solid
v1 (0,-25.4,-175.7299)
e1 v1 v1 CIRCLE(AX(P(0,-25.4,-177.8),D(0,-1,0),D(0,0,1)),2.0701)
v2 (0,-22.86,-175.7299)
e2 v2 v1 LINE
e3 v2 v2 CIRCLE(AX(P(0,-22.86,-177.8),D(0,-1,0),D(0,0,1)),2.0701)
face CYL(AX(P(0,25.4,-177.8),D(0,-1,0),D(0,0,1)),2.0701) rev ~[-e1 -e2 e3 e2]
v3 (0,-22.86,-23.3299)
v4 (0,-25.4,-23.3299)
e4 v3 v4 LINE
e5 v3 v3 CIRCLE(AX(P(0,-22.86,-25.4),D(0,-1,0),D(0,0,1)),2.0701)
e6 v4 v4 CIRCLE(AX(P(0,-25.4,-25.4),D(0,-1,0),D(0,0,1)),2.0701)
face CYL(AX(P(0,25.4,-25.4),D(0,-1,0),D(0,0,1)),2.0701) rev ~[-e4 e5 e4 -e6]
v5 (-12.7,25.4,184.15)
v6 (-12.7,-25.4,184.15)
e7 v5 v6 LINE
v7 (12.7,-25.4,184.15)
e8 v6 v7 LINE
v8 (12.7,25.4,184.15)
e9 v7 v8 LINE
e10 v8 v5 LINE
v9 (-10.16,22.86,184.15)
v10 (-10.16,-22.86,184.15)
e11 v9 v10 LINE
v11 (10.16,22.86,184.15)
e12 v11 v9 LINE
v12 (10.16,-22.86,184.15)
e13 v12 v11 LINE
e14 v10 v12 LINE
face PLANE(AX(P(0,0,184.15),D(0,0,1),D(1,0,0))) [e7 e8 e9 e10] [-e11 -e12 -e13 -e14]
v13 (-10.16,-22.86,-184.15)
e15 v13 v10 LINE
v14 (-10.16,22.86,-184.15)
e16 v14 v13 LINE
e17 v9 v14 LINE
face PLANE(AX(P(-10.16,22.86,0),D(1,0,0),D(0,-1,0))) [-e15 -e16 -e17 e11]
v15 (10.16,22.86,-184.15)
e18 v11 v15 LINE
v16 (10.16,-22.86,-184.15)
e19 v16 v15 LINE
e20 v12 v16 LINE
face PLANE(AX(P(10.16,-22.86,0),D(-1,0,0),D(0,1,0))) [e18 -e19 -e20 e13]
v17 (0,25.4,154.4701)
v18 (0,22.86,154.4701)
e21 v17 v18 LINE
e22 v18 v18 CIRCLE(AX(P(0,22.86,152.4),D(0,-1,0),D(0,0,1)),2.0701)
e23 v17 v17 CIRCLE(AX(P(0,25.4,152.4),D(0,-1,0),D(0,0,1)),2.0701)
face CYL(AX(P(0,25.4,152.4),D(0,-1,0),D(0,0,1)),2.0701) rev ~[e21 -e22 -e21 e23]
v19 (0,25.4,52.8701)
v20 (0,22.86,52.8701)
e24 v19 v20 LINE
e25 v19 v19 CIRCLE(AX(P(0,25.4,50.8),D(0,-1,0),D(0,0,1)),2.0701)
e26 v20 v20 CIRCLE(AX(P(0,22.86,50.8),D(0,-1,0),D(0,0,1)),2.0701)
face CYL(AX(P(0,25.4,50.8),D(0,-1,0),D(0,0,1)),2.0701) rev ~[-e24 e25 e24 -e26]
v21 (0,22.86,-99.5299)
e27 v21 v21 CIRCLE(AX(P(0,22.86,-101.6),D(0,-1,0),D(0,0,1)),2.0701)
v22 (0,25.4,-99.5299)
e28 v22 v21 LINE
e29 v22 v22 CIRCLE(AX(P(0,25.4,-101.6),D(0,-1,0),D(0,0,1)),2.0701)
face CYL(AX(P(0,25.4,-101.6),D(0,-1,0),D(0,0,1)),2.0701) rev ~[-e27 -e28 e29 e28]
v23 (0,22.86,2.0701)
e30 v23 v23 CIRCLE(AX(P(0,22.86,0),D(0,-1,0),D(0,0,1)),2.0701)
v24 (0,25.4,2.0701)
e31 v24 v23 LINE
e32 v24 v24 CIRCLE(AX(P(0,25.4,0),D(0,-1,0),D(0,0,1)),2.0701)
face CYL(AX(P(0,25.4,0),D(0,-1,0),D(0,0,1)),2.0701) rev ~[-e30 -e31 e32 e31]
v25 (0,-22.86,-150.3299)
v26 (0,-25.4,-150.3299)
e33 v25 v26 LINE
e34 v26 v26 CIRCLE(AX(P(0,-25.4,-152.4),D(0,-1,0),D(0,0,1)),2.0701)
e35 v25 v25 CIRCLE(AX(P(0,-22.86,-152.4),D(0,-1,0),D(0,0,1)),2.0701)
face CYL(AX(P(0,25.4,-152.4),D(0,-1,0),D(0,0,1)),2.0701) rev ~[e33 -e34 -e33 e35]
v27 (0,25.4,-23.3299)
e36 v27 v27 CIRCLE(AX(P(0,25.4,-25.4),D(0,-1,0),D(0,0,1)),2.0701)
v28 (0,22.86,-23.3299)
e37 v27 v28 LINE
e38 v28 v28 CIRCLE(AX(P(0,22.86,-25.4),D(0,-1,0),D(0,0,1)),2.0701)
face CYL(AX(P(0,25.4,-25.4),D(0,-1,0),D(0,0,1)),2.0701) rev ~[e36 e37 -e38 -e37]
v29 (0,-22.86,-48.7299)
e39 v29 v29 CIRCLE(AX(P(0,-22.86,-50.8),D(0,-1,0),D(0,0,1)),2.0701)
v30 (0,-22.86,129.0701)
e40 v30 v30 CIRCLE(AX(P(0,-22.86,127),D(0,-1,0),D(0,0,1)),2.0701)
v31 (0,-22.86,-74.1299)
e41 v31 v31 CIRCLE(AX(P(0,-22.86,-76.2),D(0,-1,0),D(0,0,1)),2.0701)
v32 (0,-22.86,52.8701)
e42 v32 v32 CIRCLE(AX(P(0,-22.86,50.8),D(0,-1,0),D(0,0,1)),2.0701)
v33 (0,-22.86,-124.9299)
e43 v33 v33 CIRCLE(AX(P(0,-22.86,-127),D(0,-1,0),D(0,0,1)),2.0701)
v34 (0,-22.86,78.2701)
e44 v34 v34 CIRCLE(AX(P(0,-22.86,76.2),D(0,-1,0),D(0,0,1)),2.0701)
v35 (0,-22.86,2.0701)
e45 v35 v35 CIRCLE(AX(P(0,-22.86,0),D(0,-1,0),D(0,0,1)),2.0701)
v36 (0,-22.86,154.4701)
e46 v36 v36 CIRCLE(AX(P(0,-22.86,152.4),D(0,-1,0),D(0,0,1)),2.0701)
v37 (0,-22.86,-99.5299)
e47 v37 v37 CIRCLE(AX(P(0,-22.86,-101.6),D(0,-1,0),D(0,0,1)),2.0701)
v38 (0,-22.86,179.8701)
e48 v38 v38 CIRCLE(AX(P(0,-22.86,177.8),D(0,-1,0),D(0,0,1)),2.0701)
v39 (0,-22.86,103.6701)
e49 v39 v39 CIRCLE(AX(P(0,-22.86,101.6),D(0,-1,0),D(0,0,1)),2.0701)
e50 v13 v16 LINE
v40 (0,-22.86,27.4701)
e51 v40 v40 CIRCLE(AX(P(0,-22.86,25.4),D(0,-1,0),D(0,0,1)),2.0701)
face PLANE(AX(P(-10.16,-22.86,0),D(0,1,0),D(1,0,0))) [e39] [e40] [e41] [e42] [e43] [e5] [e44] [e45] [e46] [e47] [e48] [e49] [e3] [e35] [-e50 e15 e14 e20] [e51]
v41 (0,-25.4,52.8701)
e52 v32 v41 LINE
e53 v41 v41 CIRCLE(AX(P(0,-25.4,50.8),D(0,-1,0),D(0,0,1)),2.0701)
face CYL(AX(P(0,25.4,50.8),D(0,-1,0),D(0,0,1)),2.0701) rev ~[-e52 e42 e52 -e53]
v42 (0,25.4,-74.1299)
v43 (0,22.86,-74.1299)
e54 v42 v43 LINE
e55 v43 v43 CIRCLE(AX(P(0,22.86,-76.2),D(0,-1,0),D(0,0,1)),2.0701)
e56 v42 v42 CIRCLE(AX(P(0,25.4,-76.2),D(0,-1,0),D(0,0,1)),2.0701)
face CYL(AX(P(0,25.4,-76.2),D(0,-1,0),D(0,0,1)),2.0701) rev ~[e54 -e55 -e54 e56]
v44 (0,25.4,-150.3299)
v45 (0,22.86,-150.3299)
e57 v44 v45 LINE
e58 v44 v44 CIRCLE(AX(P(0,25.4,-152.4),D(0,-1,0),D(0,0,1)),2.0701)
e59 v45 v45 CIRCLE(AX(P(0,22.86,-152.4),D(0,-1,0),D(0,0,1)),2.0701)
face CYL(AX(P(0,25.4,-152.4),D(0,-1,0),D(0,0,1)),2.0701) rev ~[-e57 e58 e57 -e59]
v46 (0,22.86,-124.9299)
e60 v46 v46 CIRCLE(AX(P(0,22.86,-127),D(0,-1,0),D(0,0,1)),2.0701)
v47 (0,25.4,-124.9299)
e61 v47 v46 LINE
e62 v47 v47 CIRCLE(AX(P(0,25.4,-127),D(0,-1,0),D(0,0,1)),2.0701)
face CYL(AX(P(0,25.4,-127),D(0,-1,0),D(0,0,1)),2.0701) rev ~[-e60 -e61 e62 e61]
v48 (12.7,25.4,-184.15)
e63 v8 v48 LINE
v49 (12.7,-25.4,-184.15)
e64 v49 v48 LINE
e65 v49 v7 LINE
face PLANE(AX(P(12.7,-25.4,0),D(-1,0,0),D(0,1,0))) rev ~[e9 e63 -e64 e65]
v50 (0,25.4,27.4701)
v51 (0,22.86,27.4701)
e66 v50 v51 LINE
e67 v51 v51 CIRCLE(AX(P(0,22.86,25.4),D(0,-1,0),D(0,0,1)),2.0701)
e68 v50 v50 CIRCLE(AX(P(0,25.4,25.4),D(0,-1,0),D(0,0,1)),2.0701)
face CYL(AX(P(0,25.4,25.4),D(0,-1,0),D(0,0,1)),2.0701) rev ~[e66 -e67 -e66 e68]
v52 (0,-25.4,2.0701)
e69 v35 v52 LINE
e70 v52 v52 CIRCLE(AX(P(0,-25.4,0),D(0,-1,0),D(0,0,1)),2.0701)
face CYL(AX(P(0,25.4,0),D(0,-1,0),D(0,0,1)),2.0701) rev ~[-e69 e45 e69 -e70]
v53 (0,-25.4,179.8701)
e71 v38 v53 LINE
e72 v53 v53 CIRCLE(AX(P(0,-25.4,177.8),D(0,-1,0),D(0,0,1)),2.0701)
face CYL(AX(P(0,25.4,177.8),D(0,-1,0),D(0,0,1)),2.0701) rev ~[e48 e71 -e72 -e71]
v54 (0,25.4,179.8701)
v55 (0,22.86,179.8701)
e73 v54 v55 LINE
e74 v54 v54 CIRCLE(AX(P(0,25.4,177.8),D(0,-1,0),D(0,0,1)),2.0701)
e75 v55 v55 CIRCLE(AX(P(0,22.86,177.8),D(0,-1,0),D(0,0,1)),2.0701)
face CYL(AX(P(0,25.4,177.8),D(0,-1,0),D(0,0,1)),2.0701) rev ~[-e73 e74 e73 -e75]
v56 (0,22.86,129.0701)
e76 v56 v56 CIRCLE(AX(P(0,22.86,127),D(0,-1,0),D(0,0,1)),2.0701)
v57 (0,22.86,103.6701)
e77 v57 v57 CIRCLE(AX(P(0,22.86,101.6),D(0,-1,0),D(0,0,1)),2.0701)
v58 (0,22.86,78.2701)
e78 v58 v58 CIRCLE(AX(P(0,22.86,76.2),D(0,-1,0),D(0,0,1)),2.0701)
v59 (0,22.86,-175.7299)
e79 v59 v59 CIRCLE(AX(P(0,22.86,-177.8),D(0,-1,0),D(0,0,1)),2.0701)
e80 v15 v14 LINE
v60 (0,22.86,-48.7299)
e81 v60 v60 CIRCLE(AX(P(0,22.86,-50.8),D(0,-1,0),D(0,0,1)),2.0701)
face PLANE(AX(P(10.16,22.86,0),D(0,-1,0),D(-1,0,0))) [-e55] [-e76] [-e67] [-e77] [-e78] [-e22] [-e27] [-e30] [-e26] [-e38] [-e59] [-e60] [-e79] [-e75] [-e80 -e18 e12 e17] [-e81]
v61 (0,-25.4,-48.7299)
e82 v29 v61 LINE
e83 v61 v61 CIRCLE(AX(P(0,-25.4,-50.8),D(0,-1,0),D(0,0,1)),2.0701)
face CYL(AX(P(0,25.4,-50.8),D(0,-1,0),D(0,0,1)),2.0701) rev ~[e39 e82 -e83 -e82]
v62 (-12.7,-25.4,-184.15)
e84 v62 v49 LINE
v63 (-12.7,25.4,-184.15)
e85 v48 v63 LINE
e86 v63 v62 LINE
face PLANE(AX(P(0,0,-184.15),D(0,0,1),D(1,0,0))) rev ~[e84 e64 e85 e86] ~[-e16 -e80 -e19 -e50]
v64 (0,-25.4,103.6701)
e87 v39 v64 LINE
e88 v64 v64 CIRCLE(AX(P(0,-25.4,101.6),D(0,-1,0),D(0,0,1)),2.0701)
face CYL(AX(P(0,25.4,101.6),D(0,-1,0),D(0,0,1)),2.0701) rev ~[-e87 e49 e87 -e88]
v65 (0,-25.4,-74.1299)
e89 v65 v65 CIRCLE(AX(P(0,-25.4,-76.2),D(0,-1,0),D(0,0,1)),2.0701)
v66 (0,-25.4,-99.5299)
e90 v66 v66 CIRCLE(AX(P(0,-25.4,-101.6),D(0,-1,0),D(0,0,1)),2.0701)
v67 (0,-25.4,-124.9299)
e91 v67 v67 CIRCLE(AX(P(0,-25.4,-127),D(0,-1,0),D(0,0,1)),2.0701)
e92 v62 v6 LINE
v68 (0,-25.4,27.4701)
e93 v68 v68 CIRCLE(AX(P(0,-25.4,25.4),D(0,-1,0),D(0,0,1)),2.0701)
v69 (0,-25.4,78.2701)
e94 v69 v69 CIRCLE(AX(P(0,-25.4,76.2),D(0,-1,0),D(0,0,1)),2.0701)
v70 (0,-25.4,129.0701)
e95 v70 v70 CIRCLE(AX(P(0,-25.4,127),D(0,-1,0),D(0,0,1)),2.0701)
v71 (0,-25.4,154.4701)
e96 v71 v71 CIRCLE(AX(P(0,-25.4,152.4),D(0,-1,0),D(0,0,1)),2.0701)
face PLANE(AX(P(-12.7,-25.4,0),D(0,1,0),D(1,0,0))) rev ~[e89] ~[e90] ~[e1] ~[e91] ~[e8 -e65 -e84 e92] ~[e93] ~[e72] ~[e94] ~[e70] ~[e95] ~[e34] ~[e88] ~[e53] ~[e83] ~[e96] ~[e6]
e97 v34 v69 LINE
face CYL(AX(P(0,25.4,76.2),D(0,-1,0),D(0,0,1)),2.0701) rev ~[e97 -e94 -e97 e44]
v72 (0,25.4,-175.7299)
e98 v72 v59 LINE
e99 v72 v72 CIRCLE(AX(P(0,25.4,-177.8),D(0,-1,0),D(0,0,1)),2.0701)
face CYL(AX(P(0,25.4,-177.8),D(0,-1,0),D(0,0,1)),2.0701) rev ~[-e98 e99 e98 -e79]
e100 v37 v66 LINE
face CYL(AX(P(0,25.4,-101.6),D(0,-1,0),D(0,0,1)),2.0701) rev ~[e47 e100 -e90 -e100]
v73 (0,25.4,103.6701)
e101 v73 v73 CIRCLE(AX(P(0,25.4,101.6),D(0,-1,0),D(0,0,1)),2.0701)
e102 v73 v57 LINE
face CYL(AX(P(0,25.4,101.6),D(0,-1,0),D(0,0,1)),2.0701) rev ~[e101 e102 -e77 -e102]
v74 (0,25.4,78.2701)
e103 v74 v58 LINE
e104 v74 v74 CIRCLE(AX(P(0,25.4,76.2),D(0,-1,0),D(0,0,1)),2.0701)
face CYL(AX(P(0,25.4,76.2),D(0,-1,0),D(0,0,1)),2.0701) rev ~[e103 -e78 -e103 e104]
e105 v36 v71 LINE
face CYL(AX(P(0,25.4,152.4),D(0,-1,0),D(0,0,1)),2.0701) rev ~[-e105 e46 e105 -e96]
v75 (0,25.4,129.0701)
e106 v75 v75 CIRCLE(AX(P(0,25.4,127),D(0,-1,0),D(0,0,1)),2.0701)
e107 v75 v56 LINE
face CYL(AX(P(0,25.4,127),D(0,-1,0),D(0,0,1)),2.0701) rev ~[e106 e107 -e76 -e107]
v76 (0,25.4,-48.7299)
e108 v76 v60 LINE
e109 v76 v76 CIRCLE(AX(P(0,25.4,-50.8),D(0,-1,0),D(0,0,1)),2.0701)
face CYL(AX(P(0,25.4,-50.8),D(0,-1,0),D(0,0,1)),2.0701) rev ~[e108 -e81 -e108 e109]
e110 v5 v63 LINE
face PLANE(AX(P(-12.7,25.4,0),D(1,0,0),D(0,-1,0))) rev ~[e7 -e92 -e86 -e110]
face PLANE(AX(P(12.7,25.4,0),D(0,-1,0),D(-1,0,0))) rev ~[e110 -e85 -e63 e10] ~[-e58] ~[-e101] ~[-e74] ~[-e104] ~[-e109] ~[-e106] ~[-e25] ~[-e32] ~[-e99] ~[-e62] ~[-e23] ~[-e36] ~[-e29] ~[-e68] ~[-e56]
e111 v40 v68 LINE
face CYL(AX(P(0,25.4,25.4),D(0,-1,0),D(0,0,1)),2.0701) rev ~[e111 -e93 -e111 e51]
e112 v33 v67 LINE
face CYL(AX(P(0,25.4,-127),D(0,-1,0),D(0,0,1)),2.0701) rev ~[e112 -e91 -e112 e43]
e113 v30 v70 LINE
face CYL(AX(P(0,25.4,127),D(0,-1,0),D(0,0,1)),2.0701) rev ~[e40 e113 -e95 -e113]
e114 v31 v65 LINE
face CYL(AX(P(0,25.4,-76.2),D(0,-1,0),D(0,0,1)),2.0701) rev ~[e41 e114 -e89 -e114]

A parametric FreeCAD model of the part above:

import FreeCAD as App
import Part
import Sketcher

V = App.Vector
Q = App.Units.Quantity

doc = App.newDocument("Part")
params = doc.addObject("Spreadsheet::Sheet", "Params")
for row, (alias, value) in enumerate([
    ("sketch1_width", "1 in"),
    ("sketch1_height", "2 in"),
    ("sketch1_width2", "0.8 in"),
    ("sketch1_height2", "1.8 in"),
    ("pad1_length", "14.5 in"),
    ("sketch2_diameter", "0.163 in"),
    ("hole_diameter", "0.163 in"),
    ("linearpattern_pitch", "1 in"),
], start=1):
    params.set(f"A{row}", alias)
    params.set(f"B{row}", "=" + value)
    params.setAlias(f"B{row}", alias)

body = doc.addObject("PartDesign::Body", "Body")

# Sketch on XY plane
sketch1 = body.newObject("Sketcher::SketchObject", "Sketch")
sketch1.AttachmentSupport = (doc.getObject("XY_Plane"), [""])
sketch1.MapMode = "FlatFace"
sketch1.addGeometry([
    Part.LineSegment(V(-13, 25, 0), V(-13, -25, 0)),  # 0
    Part.LineSegment(V(-13, -25, 0), V(13, -25, 0)),  # 1
    Part.LineSegment(V(13, -25, 0), V(13, 25, 0)),  # 2
    Part.LineSegment(V(13, 25, 0), V(-13, 25, 0)),  # 3
    Part.LineSegment(V(10, -23, 0), V(-10, -23, 0)),  # 4
    Part.LineSegment(V(-10, -23, 0), V(-10, 23, 0)),  # 5
    Part.LineSegment(V(-10, 23, 0), V(10, 23, 0)),  # 6
    Part.LineSegment(V(10, 23, 0), V(10, -23, 0)),  # 7
], False)
sketch1.addConstraint([
    Sketcher.Constraint("Coincident", 0, 2, 1, 1),
    Sketcher.Constraint("Coincident", 1, 2, 2, 1),
    Sketcher.Constraint("Coincident", 2, 2, 3, 1),
    Sketcher.Constraint("Coincident", 3, 2, 0, 1),
    Sketcher.Constraint("Coincident", 4, 2, 5, 1),
    Sketcher.Constraint("Coincident", 5, 2, 6, 1),
    Sketcher.Constraint("Coincident", 6, 2, 7, 1),
    Sketcher.Constraint("Coincident", 7, 2, 4, 1),
    Sketcher.Constraint("Vertical", 0),
    Sketcher.Constraint("Horizontal", 1),
    Sketcher.Constraint("Vertical", 2),
    Sketcher.Constraint("Horizontal", 3),
    Sketcher.Constraint("Horizontal", 4),
    Sketcher.Constraint("Vertical", 5),
    Sketcher.Constraint("Horizontal", 6),
    Sketcher.Constraint("Vertical", 7),
    Sketcher.Constraint("Symmetric", 0, 2, 2, 2, -1, 1),
    Sketcher.Constraint("Symmetric", 4, 2, 6, 2, -1, 1),
    Sketcher.Constraint("DistanceX", 1, 1, 1, 2, Q("1 in")),
    Sketcher.Constraint("DistanceY", 0, 2, 0, 1, Q("2 in")),
    Sketcher.Constraint("DistanceX", 4, 2, 4, 1, Q("0.8 in")),
    Sketcher.Constraint("DistanceY", 5, 1, 5, 2, Q("1.8 in")),
])
sketch1.setExpression("Constraints[18]", "Params.sketch1_width")
sketch1.setExpression("Constraints[19]", "Params.sketch1_height")
sketch1.setExpression("Constraints[20]", "Params.sketch1_width2")
sketch1.setExpression("Constraints[21]", "Params.sketch1_height2")
pad1 = body.newObject("PartDesign::Pad", "Pad")
pad1.Profile = sketch1
pad1.setExpression("Length", "Params.pad1_length")
pad1.Midplane = True

# Sketch on XZ plane
sketch2 = body.newObject("Sketcher::SketchObject", "Sketch001")
sketch2.AttachmentSupport = (doc.getObject("XZ_Plane"), [""])
sketch2.MapMode = "FlatFace"
sketch2.AttachmentOffset = App.Placement(V(0, 0, -1 * 25.4), App.Rotation())
sketch2.addGeometry(Part.Circle(V(0, 177.8, 0), V(0, 0, 1), 2.1), False)
sketch2.addConstraint([
    Sketcher.Constraint("PointOnObject", 0, 3, -2),
    Sketcher.Constraint("Diameter", 0, Q("0.163 in")),
    Sketcher.Constraint("DistanceY", -1, 1, 0, 3, Q("7 in")),
])
sketch2.setExpression("Constraints[1]", "Params.sketch2_diameter")
doc.recompute()
hole = body.newObject("PartDesign::Hole", "Hole")
hole.Profile = sketch2
hole.ThreadType = "None"
hole.setExpression("Diameter", "Params.hole_diameter")
hole.DepthType = "ThroughAll"
hole.Reversed = True
doc.recompute()

linearpattern = body.newObject("PartDesign::LinearPattern", "LinearPattern")
linearpattern.Originals = [hole]
linearpattern.Direction = (doc.getObject("Z_Axis"), [""])
linearpattern.Mode = "offset"
linearpattern.setExpression("Offset", "Params.linearpattern_pitch")
linearpattern.Occurrences = 15
linearpattern.Reversed = True
body.Tip = linearpattern

doc.recompute()
